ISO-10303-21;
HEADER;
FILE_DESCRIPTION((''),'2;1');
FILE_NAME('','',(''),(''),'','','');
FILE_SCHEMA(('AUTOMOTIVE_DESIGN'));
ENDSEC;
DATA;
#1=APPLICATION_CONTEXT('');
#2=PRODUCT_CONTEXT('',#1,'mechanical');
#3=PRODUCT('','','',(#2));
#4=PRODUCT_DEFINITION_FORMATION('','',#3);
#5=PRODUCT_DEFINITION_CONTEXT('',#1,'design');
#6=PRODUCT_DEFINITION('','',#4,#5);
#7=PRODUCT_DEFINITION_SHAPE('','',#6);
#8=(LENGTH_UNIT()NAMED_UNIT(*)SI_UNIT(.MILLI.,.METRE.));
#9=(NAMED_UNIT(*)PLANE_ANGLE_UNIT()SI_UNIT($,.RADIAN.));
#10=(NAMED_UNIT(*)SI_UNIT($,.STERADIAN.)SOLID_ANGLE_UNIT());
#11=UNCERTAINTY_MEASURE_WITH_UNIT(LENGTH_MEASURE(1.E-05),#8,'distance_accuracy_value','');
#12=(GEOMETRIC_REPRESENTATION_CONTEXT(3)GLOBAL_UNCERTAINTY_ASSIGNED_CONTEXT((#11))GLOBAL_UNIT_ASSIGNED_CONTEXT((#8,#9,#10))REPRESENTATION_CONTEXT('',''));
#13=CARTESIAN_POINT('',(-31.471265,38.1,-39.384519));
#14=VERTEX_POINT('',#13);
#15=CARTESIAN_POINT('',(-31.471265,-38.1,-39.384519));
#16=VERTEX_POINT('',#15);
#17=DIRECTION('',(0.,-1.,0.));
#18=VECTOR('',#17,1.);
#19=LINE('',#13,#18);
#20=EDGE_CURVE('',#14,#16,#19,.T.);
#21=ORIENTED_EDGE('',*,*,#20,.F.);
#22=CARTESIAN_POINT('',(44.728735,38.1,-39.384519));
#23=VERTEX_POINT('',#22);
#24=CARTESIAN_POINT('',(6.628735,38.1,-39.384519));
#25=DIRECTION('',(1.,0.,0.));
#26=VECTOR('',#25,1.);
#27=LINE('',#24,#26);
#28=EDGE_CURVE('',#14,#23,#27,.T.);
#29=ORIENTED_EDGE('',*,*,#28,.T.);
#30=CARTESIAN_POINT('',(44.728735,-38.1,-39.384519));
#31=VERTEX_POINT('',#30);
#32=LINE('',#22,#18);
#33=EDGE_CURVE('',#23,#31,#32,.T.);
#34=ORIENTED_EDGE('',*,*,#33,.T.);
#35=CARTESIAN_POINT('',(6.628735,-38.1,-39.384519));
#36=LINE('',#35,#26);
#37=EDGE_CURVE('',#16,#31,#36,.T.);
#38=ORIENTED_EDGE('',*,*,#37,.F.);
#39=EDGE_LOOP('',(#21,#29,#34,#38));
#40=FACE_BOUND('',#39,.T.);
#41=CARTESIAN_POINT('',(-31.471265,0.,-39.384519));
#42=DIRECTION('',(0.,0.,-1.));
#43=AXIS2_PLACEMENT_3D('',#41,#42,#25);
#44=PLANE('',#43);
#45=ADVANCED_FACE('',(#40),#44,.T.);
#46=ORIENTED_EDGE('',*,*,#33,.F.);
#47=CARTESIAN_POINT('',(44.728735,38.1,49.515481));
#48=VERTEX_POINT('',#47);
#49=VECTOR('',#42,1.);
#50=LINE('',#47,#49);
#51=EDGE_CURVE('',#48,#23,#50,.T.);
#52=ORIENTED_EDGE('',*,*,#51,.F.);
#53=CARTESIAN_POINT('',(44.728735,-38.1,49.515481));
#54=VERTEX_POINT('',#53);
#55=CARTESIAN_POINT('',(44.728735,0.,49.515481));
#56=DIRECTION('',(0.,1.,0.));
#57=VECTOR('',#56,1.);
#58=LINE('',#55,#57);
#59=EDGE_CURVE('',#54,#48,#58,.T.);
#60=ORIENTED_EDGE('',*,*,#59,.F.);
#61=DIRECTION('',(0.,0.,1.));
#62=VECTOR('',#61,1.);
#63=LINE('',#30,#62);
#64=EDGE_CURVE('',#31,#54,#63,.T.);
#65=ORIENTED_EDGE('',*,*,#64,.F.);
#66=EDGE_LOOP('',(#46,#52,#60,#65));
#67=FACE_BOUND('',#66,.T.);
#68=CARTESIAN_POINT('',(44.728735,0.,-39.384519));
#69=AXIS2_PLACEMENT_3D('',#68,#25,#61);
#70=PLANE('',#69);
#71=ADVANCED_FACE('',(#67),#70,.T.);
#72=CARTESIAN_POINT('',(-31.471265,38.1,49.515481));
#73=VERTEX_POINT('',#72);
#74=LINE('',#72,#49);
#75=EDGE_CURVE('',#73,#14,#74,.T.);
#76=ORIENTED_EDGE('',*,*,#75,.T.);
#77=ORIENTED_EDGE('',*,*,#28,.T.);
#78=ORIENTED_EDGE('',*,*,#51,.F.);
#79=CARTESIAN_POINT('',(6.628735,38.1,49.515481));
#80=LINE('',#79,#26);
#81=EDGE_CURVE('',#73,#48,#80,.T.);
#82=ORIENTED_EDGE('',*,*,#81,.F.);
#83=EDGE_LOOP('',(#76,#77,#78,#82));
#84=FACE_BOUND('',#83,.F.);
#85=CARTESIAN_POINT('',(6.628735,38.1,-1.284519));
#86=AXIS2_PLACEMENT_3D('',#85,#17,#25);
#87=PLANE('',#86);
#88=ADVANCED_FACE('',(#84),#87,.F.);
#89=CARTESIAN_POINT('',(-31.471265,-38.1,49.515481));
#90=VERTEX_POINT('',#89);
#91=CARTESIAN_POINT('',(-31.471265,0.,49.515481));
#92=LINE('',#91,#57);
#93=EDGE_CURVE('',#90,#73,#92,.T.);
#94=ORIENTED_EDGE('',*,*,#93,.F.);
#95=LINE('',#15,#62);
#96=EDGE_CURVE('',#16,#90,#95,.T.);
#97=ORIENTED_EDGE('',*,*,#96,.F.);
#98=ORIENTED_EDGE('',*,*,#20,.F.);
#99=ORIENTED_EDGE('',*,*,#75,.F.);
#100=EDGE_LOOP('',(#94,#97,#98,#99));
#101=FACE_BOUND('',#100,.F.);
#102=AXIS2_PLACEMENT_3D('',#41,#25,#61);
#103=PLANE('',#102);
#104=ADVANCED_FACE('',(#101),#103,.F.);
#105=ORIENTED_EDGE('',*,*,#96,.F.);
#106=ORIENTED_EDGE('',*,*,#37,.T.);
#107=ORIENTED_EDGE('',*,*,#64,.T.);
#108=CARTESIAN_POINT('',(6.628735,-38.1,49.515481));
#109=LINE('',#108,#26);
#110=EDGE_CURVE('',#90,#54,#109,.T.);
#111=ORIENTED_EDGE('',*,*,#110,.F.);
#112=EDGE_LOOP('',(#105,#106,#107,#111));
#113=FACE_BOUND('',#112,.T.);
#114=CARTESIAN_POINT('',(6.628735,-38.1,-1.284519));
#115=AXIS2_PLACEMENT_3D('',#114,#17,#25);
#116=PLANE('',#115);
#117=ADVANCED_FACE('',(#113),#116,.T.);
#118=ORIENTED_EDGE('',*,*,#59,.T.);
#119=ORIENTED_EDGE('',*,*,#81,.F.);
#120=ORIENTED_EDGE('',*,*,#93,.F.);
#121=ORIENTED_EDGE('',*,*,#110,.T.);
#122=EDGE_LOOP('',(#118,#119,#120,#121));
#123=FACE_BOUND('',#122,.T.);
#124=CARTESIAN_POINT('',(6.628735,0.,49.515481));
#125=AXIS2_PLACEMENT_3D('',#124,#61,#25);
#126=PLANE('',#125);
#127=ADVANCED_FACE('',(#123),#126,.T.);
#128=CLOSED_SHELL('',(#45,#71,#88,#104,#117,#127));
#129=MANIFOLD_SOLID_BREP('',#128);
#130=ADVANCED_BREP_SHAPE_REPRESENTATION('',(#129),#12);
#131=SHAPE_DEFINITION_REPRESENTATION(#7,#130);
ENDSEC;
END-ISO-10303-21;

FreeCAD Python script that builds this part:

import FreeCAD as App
import Part
import Sketcher

V = App.Vector
Q = App.Units.Quantity

doc = App.newDocument("Part")
body = doc.addObject("PartDesign::Body", "Body")

# Sketch on XZ plane
sketch1 = body.newObject("Sketcher::SketchObject", "Sketch")
sketch1.AttachmentSupport = (doc.getObject("XZ_Plane"), [""])
sketch1.MapMode = "FlatFace"
sketch1.addGeometry([
    Part.LineSegment(V(-31.471265, 36.815481, 0), V(-31.471265, -39.384519, 0)),
    Part.LineSegment(V(-31.471265, -39.384519, 0), V(44.728735, -39.384519, 0)),
    Part.LineSegment(V(44.728735, -39.384519, 0), V(44.728735, 36.815481, 0)),
    Part.LineSegment(V(44.728735, 36.815481, 0), V(-31.471265, 36.815481, 0)),
], False)
sketch1.addConstraint([
    Sketcher.Constraint("Coincident", 0, 2, 1, 1),
    Sketcher.Constraint("Coincident", 1, 2, 2, 1),
    Sketcher.Constraint("Coincident", 2, 2, 3, 1),
    Sketcher.Constraint("Coincident", 3, 2, 0, 1),
    Sketcher.Constraint("Vertical", 0),
    Sketcher.Constraint("Horizontal", 1),
    Sketcher.Constraint("Vertical", 2),
    Sketcher.Constraint("Horizontal", 3),
    Sketcher.Constraint("Equal", 3, 0),
    Sketcher.Constraint("DistanceX", 1, 1, 1, 2, Q("3 in")),
    Sketcher.Constraint("DistanceY", 0, 2, -1, 1, 39.384519),
    Sketcher.Constraint("DistanceX", 0, 2, -1, 1, 31.471265),
])
pad1 = body.newObject("PartDesign::Pad", "Pad")
pad1.Profile = sketch1
pad1.Length = Q("3 in")
pad1.Midplane = True

# Sketch on XY plane
sketch2 = body.newObject("Sketcher::SketchObject", "Sketch001")
sketch2.AttachmentSupport = (doc.getObject("XY_Plane"), [""])
sketch2.MapMode = "FlatFace"
sketch2.AttachmentOffset = App.Placement(V(0, 0, 36.815481), App.Rotation())
sketch2.addGeometry([
    Part.LineSegment(V(-31.471265, 38.1, 0), V(-31.471265, -38.1, 0)),
    Part.LineSegment(V(-31.471265, -38.1, 0), V(44.728735, -38.1, 0)),
    Part.LineSegment(V(44.728735, -38.1, 0), V(44.728735, 38.1, 0)),
    Part.LineSegment(V(44.728735, 38.1, 0), V(-31.471265, 38.1, 0)),
], False)
sketch2.addConstraint([
    Sketcher.Constraint("Coincident", 0, 2, 1, 1),
    Sketcher.Constraint("Coincident", 1, 2, 2, 1),
    Sketcher.Constraint("Coincident", 2, 2, 3, 1),
    Sketcher.Constraint("Coincident", 3, 2, 0, 1),
    Sketcher.Constraint("Vertical", 0),
    Sketcher.Constraint("Horizontal", 1),
    Sketcher.Constraint("Vertical", 2),
    Sketcher.Constraint("Horizontal", 3),
    Sketcher.Constraint("Equal", 3, 0),
    Sketcher.Constraint("DistanceX", 1, 1, 1, 2, Q("3 in")),
    Sketcher.Constraint("DistanceY", 0, 2, -1, 1, Q("1.5 in")),
    Sketcher.Constraint("DistanceX", 0, 2, -1, 1, 31.471265),
])
pad2 = body.newObject("PartDesign::Pad", "Pad001")
pad2.Profile = sketch2
pad2.Length = Q("1 in")
pad2.Midplane = True

doc.recompute()
